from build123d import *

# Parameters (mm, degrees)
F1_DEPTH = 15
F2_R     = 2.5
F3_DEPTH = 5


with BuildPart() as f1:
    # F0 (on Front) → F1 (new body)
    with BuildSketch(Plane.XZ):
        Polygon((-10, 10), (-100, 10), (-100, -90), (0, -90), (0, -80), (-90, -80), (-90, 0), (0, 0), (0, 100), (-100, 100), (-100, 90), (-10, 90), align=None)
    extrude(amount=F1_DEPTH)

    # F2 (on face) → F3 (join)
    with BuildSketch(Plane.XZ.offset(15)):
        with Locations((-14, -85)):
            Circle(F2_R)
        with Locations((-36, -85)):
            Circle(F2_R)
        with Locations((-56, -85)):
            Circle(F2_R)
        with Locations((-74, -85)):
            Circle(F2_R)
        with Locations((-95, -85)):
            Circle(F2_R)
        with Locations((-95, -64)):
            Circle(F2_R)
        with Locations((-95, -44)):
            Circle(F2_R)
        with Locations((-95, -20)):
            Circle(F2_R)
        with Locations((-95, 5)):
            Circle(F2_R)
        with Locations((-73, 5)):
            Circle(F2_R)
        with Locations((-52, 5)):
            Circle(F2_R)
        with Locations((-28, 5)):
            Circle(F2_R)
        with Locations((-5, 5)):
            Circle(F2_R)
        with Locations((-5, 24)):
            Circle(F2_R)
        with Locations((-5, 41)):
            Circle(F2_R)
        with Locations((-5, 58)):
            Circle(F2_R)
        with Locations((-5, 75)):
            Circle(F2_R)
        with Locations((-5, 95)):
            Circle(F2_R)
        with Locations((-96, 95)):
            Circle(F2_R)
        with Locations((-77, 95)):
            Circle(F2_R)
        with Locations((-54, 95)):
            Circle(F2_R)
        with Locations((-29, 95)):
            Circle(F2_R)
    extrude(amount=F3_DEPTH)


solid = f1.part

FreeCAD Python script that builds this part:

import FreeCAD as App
import Part
import Sketcher
from FreeCAD import Vector
Q = App.Units.Quantity

doc = App.newDocument("Part")
body = doc.addObject("PartDesign::Body", "Body")

# Sketch on XZ plane
sketch1 = body.newObject("Sketcher::SketchObject", "Sketch")
sketch1.AttachmentSupport = (doc.getObject("XZ_Plane"), [""])
sketch1.MapMode = "FlatFace"
sketch1.addGeometry([
    Part.LineSegment(Vector(-10, 10, 0), Vector(-100, 10, 0)),  # 0
    Part.LineSegment(Vector(-100, 10, 0), Vector(-100, -90, 0)),  # 1
    Part.LineSegment(Vector(-100, -90, 0), Vector(0, -90, 0)),  # 2
    Part.LineSegment(Vector(0, -90, 0), Vector(0, -80, 0)),  # 3
    Part.LineSegment(Vector(0, -80, 0), Vector(-90, -80, 0)),  # 4
    Part.LineSegment(Vector(-90, -80, 0), Vector(-90, 0, 0)),  # 5
    Part.LineSegment(Vector(-90, 0, 0), Vector(0, 0, 0)),  # 6
    Part.LineSegment(Vector(0, 0, 0), Vector(0, 100, 0)),  # 7
    Part.LineSegment(Vector(0, 100, 0), Vector(-100, 100, 0)),  # 8
    Part.LineSegment(Vector(-100, 100, 0), Vector(-100, 90, 0)),  # 9
    Part.LineSegment(Vector(-100, 90, 0), Vector(-10, 90, 0)),  # 10
    Part.LineSegment(Vector(-10, 90, 0), Vector(-10, 10, 0)),  # 11
], False)
sketch1.addConstraint([
    Sketcher.Constraint("Coincident", 0, 2, 1, 1),
    Sketcher.Constraint("Coincident", 1, 2, 2, 1),
    Sketcher.Constraint("Coincident", 2, 2, 3, 1),
    Sketcher.Constraint("Coincident", 3, 2, 4, 1),
    Sketcher.Constraint("Coincident", 4, 2, 5, 1),
    Sketcher.Constraint("Coincident", 5, 2, 6, 1),
    Sketcher.Constraint("Coincident", 6, 2, 7, 1),
    Sketcher.Constraint("Coincident", 7, 2, 8, 1),
    Sketcher.Constraint("Coincident", 8, 2, 9, 1),
    Sketcher.Constraint("Coincident", 9, 2, 10, 1),
    Sketcher.Constraint("Coincident", 10, 2, 11, 1),
    Sketcher.Constraint("Coincident", 11, 2, 0, 1),
    Sketcher.Constraint("Horizontal", 0),
    Sketcher.Constraint("Vertical", 1),
    Sketcher.Constraint("Horizontal", 2),
    Sketcher.Constraint("Vertical", 3),
    Sketcher.Constraint("Horizontal", 4),
    Sketcher.Constraint("Vertical", 5),
    Sketcher.Constraint("Horizontal", 6),
    Sketcher.Constraint("Vertical", 7),
    Sketcher.Constraint("Horizontal", 8),
    Sketcher.Constraint("Vertical", 9),
    Sketcher.Constraint("Horizontal", 10),
    Sketcher.Constraint("Vertical", 11),
    Sketcher.Constraint("Coincident", 6, 2, -1, 1),
    Sketcher.Constraint("Symmetric", 1, 2, 9, 2, -1),
    Sketcher.Constraint("PointOnObject", 2, 2, -2),
    Sketcher.Constraint("Equal", 0, 4),
    Sketcher.Constraint("Equal", 8, 1),
    Sketcher.Constraint("Equal", 1, 7),
    Sketcher.Constraint("Equal", 3, 9),
    Sketcher.Constraint("DistanceX", 0, 2, 0, 1, Q("90 mm")),
    Sketcher.Constraint("DistanceX", 2, 1, 2, 2, Q("100 mm")),
    Sketcher.Constraint("DistanceY", 3, 1, 3, 2, Q("10 mm")),
])
pad1 = body.newObject("PartDesign::Pad", "Pad")
pad1.Profile = sketch1
pad1.Length = 15

# Sketch on XZ plane
sketch2 = body.newObject("Sketcher::SketchObject", "Sketch001")
sketch2.AttachmentSupport = (doc.getObject("XZ_Plane"), [""])
sketch2.MapMode = "FlatFace"
sketch2.AttachmentOffset = App.Placement(Vector(0, 0, 15), App.Rotation())
sketch2.addGeometry([
    Part.Circle(Vector(-14, -85, 0), Vector(0, 0, 1), 2.5),  # 0
    Part.Circle(Vector(-36, -85, 0), Vector(0, 0, 1), 2.5),  # 1
    Part.Circle(Vector(-56, -85, 0), Vector(0, 0, 1), 2.5),  # 2
    Part.Circle(Vector(-74, -85, 0), Vector(0, 0, 1), 2.5),  # 3
    Part.Circle(Vector(-95, -85, 0), Vector(0, 0, 1), 2.5),  # 4
    Part.Circle(Vector(-95, -64, 0), Vector(0, 0, 1), 2.5),  # 5
    Part.Circle(Vector(-95, -44, 0), Vector(0, 0, 1), 2.5),  # 6
    Part.Circle(Vector(-95, -20, 0), Vector(0, 0, 1), 2.5),  # 7
    Part.Circle(Vector(-95, 5, 0), Vector(0, 0, 1), 2.5),  # 8
    Part.Circle(Vector(-73, 5, 0), Vector(0, 0, 1), 2.5),  # 9
    Part.Circle(Vector(-52, 5, 0), Vector(0, 0, 1), 2.5),  # 10
    Part.Circle(Vector(-28, 5, 0), Vector(0, 0, 1), 2.5),  # 11
    Part.Circle(Vector(-5, 5, 0), Vector(0, 0, 1), 2.5),  # 12
    Part.Circle(Vector(-5, 24, 0), Vector(0, 0, 1), 2.5),  # 13
    Part.Circle(Vector(-5, 41, 0), Vector(0, 0, 1), 2.5),  # 14
    Part.Circle(Vector(-5, 58, 0), Vector(0, 0, 1), 2.5),  # 15
    Part.Circle(Vector(-5, 75, 0), Vector(0, 0, 1), 2.5),  # 16
    Part.Circle(Vector(-5, 95, 0), Vector(0, 0, 1), 2.5),  # 17
    Part.Circle(Vector(-96, 95, 0), Vector(0, 0, 1), 2.5),  # 18
    Part.Circle(Vector(-77, 95, 0), Vector(0, 0, 1), 2.5),  # 19
    Part.Circle(Vector(-54, 95, 0), Vector(0, 0, 1), 2.5),  # 20
    Part.Circle(Vector(-29, 95, 0), Vector(0, 0, 1), 2.5),  # 21
], False)
sketch2.addConstraint([
    Sketcher.Constraint("Equal", 0, 1),
    Sketcher.Constraint("Equal", 1, 2),
    Sketcher.Constraint("Equal", 2, 3),
    Sketcher.Constraint("Equal", 3, 4),
    Sketcher.Constraint("Equal", 4, 5),
    Sketcher.Constraint("Equal", 5, 6),
    Sketcher.Constraint("Equal", 6, 7),
    Sketcher.Constraint("Equal", 7, 8),
    Sketcher.Constraint("Equal", 8, 9),
    Sketcher.Constraint("Equal", 9, 10),
    Sketcher.Constraint("Equal", 10, 11),
    Sketcher.Constraint("Equal", 11, 12),
    Sketcher.Constraint("Equal", 12, 13),
    Sketcher.Constraint("Equal", 13, 14),
    Sketcher.Constraint("Equal", 14, 15),
    Sketcher.Constraint("Equal", 15, 16),
    Sketcher.Constraint("Equal", 16, 17),
    Sketcher.Constraint("Equal", 17, 18),
    Sketcher.Constraint("Equal", 18, 19),
    Sketcher.Constraint("Equal", 19, 20),
    Sketcher.Constraint("Equal", 20, 21),
    Sketcher.Constraint("Horizontal", 0, 3, 1, 3),
    Sketcher.Constraint("Horizontal", 1, 3, 2, 3),
    Sketcher.Constraint("Horizontal", 2, 3, 3, 3),
    Sketcher.Constraint("Horizontal", 3, 3, 4, 3),
    Sketcher.Constraint("Horizontal", 8, 3, 9, 3),
    Sketcher.Constraint("Horizontal", 9, 3, 10, 3),
    Sketcher.Constraint("Horizontal", 10, 3, 11, 3),
    Sketcher.Constraint("Horizontal", 11, 3, 12, 3),
    Sketcher.Constraint("Horizontal", 17, 3, 18, 3),
    Sketcher.Constraint("Horizontal", 18, 3, 19, 3),
    Sketcher.Constraint("Horizontal", 19, 3, 20, 3),
    Sketcher.Constraint("Horizontal", 20, 3, 21, 3),
    Sketcher.Constraint("Vertical", 4, 3, 5, 3),
    Sketcher.Constraint("Vertical", 5, 3, 6, 3),
    Sketcher.Constraint("Vertical", 6, 3, 7, 3),
    Sketcher.Constraint("Vertical", 7, 3, 8, 3),
    Sketcher.Constraint("Vertical", 12, 3, 13, 3),
    Sketcher.Constraint("Vertical", 13, 3, 14, 3),
    Sketcher.Constraint("Vertical", 14, 3, 15, 3),
    Sketcher.Constraint("Vertical", 15, 3, 16, 3),
    Sketcher.Constraint("Vertical", 16, 3, 17, 3),
    Sketcher.Constraint("Diameter", 0, Q("5 mm")),
    Sketcher.Constraint("DistanceX", 0, 3, -1, 1, Q("14 mm")),
    Sketcher.Constraint("DistanceY", 0, 3, -1, 1, Q("85 mm")),
    Sketcher.Constraint("DistanceX", 1, 3, -1, 1, Q("36 mm")),
    Sketcher.Constraint("DistanceX", 2, 3, -1, 1, Q("56 mm")),
    Sketcher.Constraint("DistanceX", 3, 3, -1, 1, Q("74 mm")),
    Sketcher.Constraint("DistanceX", 4, 3, -1, 1, Q("95 mm")),
    Sketcher.Constraint("DistanceY", 5, 3, -1, 1, Q("64 mm")),
    Sketcher.Constraint("DistanceY", 6, 3, -1, 1, Q("44 mm")),
    Sketcher.Constraint("DistanceY", 7, 3, -1, 1, Q("20 mm")),
    Sketcher.Constraint("DistanceY", -1, 1, 8, 3, Q("5 mm")),
    Sketcher.Constraint("DistanceX", 9, 3, -1, 1, Q("73 mm")),
    Sketcher.Constraint("DistanceX", 10, 3, -1, 1, Q("52 mm")),
    Sketcher.Constraint("DistanceX", 11, 3, -1, 1, Q("28 mm")),
    Sketcher.Constraint("DistanceX", 12, 3, -1, 1, Q("5 mm")),
    Sketcher.Constraint("DistanceY", -1, 1, 13, 3, Q("24 mm")),
    Sketcher.Constraint("DistanceY", -1, 1, 14, 3, Q("41 mm")),
    Sketcher.Constraint("DistanceY", -1, 1, 15, 3, Q("58 mm")),
    Sketcher.Constraint("DistanceY", -1, 1, 16, 3, Q("75 mm")),
    Sketcher.Constraint("DistanceY", -1, 1, 17, 3, Q("95 mm")),
    Sketcher.Constraint("DistanceX", 18, 3, -1, 1, Q("96 mm")),
    Sketcher.Constraint("DistanceX", 19, 3, -1, 1, Q("77 mm")),
    Sketcher.Constraint("DistanceX", 20, 3, -1, 1, Q("54 mm")),
    Sketcher.Constraint("DistanceX", 21, 3, -1, 1, Q("29 mm")),
])
pad2 = body.newObject("PartDesign::Pad", "Pad001")
pad2.Profile = sketch2
pad2.Length = 5

doc.recompute()
